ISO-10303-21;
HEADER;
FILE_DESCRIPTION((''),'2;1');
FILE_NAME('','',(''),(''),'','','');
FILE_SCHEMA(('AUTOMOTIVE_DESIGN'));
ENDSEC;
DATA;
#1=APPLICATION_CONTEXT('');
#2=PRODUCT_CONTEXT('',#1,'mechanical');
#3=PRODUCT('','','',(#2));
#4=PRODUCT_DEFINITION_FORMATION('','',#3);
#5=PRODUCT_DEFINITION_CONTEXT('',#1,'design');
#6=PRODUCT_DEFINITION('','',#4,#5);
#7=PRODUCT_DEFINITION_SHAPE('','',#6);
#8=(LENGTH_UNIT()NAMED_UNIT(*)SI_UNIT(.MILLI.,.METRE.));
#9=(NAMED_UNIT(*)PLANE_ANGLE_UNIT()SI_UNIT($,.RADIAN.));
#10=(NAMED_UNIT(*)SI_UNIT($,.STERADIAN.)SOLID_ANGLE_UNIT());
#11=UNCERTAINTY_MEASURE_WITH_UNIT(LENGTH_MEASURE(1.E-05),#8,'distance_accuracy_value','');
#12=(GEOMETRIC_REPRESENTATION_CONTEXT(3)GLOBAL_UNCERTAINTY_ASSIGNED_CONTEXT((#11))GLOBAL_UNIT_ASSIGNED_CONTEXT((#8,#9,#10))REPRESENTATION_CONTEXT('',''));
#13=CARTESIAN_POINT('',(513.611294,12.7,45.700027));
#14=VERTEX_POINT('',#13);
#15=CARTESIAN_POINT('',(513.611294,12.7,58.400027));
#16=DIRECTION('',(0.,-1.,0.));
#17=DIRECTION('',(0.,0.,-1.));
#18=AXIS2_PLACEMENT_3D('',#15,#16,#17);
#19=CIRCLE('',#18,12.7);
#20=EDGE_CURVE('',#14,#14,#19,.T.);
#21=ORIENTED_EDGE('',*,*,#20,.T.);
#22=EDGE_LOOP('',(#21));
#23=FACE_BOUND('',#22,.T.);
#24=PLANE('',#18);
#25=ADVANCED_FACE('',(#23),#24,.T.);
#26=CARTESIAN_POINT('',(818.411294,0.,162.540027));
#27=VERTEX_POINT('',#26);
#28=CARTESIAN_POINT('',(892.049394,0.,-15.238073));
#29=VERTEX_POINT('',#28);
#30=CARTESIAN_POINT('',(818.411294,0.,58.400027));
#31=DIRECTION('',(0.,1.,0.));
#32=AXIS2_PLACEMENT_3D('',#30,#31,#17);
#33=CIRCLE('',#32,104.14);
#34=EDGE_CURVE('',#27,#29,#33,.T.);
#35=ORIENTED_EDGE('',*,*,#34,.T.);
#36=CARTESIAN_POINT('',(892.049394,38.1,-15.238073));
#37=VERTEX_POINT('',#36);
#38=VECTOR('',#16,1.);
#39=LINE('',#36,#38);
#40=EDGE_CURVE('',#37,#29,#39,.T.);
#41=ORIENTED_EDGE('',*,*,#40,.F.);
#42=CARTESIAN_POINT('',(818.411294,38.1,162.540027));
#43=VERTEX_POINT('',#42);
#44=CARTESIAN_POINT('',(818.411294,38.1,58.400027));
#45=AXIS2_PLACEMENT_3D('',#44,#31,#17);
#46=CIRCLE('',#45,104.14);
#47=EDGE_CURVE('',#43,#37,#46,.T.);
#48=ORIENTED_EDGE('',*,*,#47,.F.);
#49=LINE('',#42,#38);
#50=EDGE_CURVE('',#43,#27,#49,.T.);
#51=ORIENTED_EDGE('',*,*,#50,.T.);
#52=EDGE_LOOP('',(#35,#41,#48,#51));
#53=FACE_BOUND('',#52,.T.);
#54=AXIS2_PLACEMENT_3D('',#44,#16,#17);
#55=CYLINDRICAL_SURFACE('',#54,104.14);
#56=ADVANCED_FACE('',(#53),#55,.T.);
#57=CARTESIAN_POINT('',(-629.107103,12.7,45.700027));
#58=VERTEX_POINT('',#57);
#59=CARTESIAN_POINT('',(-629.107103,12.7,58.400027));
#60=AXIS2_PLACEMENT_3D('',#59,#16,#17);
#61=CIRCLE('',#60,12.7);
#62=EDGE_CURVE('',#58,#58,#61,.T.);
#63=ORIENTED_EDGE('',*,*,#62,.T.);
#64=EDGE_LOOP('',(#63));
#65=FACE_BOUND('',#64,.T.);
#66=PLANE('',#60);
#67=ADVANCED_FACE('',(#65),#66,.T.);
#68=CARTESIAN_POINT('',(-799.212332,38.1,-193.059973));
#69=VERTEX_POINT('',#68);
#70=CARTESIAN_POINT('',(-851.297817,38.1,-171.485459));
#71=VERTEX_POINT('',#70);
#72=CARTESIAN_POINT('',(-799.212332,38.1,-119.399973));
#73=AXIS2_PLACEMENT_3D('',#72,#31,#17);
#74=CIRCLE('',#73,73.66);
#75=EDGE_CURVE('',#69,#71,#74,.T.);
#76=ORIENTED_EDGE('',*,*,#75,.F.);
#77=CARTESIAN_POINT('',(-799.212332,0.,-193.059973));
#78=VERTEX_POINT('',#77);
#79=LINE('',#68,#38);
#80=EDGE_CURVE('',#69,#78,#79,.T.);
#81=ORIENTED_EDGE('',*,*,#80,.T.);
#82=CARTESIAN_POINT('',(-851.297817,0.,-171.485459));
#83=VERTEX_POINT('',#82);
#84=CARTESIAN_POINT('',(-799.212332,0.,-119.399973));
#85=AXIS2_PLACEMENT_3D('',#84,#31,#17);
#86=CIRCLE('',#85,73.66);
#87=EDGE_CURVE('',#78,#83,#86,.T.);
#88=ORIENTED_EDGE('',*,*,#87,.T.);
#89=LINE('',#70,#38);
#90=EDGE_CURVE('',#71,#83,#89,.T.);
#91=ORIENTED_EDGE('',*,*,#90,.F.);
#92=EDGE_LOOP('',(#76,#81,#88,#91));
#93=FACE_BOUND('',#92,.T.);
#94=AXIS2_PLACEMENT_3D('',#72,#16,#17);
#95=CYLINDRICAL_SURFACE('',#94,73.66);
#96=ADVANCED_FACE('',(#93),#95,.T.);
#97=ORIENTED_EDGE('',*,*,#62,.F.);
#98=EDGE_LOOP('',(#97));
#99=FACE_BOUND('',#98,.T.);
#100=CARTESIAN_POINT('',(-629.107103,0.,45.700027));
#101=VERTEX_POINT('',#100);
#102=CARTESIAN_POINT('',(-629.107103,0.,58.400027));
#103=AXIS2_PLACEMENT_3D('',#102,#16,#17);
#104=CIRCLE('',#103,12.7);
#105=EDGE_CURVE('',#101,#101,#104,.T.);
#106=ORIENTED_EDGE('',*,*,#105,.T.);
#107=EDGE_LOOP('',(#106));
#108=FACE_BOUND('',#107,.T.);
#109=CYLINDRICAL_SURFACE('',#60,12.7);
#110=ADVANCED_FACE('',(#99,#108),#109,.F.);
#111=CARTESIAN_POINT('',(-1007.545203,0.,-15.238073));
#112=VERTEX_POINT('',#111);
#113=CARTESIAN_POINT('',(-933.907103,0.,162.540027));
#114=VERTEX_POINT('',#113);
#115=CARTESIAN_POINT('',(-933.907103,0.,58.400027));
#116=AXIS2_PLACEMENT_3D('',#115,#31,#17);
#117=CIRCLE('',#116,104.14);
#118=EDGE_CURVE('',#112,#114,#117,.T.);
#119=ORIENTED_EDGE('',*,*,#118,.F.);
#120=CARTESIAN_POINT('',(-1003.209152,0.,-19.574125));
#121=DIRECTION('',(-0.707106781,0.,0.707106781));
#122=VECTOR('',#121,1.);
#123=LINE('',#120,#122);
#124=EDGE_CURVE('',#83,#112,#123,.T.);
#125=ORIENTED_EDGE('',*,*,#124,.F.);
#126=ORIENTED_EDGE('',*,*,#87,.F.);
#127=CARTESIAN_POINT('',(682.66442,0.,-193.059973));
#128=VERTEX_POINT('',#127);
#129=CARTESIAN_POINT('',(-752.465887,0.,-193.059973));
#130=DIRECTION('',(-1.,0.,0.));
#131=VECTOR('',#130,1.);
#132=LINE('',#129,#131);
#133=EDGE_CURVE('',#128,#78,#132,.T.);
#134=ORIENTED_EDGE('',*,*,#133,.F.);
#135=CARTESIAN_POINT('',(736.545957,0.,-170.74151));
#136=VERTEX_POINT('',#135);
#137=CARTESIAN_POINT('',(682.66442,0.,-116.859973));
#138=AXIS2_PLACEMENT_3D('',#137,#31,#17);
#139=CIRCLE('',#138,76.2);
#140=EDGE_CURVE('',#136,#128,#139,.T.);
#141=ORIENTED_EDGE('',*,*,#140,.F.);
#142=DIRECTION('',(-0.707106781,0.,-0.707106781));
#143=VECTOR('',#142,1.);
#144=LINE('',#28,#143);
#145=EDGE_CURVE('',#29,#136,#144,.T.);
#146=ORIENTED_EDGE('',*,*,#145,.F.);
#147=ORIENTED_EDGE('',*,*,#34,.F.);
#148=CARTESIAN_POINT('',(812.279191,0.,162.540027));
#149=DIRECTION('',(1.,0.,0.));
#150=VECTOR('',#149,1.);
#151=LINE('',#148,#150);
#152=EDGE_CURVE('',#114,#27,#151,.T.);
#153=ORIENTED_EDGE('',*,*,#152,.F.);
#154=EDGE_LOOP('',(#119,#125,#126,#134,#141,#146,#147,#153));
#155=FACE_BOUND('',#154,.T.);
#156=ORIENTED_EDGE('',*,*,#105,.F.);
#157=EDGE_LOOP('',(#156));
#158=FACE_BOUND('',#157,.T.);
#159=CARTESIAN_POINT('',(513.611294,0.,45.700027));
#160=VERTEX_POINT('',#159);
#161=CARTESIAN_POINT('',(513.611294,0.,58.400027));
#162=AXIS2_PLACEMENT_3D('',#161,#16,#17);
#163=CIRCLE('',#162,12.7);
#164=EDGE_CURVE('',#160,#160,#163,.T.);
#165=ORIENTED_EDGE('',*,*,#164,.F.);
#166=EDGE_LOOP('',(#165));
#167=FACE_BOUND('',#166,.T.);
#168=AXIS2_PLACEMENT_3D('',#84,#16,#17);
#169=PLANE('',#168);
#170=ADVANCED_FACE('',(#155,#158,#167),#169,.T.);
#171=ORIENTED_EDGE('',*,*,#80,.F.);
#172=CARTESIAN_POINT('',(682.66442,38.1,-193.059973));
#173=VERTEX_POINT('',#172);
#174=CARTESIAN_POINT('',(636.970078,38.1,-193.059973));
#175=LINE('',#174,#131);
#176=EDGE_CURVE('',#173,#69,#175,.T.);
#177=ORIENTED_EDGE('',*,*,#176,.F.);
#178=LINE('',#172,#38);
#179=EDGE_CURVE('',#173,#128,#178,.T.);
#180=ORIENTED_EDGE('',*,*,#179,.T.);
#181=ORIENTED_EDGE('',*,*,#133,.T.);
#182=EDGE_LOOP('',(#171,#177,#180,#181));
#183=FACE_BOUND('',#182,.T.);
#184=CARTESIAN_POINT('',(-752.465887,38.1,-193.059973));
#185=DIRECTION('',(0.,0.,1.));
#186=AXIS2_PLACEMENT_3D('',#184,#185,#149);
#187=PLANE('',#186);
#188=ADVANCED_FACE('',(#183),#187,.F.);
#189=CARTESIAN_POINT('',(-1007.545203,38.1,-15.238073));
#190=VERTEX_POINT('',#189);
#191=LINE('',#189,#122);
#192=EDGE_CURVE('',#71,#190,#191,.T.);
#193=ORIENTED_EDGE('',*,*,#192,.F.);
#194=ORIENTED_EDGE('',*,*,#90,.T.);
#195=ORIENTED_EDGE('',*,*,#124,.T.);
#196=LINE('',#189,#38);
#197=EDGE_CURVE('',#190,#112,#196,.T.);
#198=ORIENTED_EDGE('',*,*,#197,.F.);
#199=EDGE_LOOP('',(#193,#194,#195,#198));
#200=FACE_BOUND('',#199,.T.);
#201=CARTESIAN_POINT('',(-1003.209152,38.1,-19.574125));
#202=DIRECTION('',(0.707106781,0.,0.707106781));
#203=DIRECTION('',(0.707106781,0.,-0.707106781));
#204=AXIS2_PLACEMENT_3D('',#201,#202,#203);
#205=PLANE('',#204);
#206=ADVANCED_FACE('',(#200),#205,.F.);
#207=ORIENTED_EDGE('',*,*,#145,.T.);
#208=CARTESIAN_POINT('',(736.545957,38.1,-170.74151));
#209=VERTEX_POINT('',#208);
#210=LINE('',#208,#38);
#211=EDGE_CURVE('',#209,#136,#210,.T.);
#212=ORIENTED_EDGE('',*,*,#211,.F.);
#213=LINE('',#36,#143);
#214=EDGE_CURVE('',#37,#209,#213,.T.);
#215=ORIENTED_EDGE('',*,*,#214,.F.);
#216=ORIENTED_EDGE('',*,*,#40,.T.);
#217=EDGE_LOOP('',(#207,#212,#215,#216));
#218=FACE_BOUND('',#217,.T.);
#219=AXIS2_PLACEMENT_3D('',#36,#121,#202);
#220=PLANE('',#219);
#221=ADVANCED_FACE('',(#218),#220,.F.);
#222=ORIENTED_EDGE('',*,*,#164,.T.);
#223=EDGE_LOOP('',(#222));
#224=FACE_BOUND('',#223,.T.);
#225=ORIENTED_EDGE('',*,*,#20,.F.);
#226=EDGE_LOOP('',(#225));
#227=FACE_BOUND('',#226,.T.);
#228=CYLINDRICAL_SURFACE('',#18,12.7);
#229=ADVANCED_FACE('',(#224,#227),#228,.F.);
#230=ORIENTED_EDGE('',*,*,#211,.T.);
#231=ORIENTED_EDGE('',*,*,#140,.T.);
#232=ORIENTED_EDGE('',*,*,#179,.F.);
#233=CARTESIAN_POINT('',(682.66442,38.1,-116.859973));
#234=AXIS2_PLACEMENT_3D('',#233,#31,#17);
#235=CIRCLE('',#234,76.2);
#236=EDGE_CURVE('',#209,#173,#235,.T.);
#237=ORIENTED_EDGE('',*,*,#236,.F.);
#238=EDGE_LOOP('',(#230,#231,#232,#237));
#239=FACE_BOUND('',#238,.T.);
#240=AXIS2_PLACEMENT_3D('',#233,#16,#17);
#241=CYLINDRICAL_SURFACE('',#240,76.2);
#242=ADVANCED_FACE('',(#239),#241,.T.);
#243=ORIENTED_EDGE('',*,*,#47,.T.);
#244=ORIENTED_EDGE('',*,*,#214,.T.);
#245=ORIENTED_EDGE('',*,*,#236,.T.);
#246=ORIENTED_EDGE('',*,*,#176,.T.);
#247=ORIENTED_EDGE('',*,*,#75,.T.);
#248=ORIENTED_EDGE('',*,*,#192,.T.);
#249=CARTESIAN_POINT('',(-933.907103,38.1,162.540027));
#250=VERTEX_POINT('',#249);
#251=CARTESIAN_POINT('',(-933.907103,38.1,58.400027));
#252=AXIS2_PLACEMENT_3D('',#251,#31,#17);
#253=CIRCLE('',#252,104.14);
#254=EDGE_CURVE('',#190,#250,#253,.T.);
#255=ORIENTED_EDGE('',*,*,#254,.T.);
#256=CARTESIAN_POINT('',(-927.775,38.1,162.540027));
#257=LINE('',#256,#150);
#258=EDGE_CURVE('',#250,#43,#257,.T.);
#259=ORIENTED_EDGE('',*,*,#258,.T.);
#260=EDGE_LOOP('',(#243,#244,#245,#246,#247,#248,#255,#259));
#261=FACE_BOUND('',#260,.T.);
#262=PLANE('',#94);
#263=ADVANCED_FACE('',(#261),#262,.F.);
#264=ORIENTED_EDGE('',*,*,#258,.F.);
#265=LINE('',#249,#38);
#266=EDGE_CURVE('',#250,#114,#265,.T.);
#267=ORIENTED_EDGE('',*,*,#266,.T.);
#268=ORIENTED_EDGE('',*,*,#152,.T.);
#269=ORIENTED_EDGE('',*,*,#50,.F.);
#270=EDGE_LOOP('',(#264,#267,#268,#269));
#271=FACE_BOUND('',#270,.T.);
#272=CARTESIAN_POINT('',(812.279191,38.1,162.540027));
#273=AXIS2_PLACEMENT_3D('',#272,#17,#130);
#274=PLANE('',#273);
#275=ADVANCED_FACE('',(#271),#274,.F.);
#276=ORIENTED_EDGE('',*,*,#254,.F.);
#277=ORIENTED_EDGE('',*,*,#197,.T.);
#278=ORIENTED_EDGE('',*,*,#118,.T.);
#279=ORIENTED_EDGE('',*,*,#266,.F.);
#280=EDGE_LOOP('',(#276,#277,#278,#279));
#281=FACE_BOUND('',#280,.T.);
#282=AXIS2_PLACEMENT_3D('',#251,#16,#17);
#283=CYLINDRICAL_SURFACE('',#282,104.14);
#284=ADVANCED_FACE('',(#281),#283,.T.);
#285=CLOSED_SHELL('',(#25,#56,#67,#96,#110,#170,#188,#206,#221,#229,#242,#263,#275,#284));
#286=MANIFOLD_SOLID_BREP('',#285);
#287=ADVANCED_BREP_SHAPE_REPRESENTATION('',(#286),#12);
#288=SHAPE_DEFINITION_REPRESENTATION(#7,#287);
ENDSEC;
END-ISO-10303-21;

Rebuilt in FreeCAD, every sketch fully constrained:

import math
import FreeCAD as App
import Part
import Sketcher

V = App.Vector
Q = App.Units.Quantity

doc = App.newDocument("Part")
body = doc.addObject("PartDesign::Body", "Body")

# Sketch on XZ plane
sketch1 = doc.addObject("Sketcher::SketchObject", "Sketch")
body.addObject(sketch1)
sketch1.AttachmentSupport = (doc.XZ_Plane, [""])
sketch1.MapMode = "FlatFace"
sketch1.addGeometry(Part.LineSegment(V(-852, -170.7, 0), V(-1003.2, -19.6, 0)), False)
sketch1.addGeometry(Part.LineSegment(V(-1003.2, -19.6, 0), V(-1007.5, -15.2, 0)), False)
sketch1.addGeometry(Part.ArcOfCircle(Part.Circle(V(-933.9, 58.4, 0), V(0, 0, 1), 104.1), math.radians(90), math.radians(225)), False)
sketch1.addGeometry(Part.LineSegment(V(-933.9, 162.5, 0), V(818.4, 162.5, 0)), False)
sketch1.addGeometry(Part.ArcOfCircle(Part.Circle(V(818.4, 58.4, 0), V(0, 0, 1), 104.1), math.radians(-45), math.radians(90)), False)
sketch1.addGeometry(Part.LineSegment(V(892, -15.2, 0), V(736.5, -170.7, 0)), False)
sketch1.addGeometry(Part.ArcOfCircle(Part.Circle(V(682.7, -116.9, 0), V(0, 0, 1), 76.2), math.radians(-90), math.radians(-45)), False)
sketch1.addGeometry(Part.LineSegment(V(682.7, -193.1, 0), V(-799.2, -193.1, 0)), False)
sketch1.addGeometry(Part.ArcOfCircle(Part.Circle(V(-799.2, -119.4, 0), V(0, 0, 1), 73.7), math.radians(-135), math.radians(-90)), False)
sketch1.addGeometry(Part.LineSegment(V(-851.3, -171.5, 0), V(-852, -170.7, 0)), False)
sketch1.addConstraint(Sketcher.Constraint("Coincident", 0, 2, 1, 1))
sketch1.addConstraint(Sketcher.Constraint("Tangent", 1, 2, 2, 2))
sketch1.addConstraint(Sketcher.Constraint("Tangent", 2, 1, 3, 1))
sketch1.addConstraint(Sketcher.Constraint("Tangent", 3, 2, 4, 2))
sketch1.addConstraint(Sketcher.Constraint("Tangent", 4, 1, 5, 1))
sketch1.addConstraint(Sketcher.Constraint("Tangent", 5, 2, 6, 2))
sketch1.addConstraint(Sketcher.Constraint("Tangent", 6, 1, 7, 1))
sketch1.addConstraint(Sketcher.Constraint("Tangent", 7, 2, 8, 2))
sketch1.addConstraint(Sketcher.Constraint("Tangent", 8, 1, 9, 1))
sketch1.addConstraint(Sketcher.Constraint("Coincident", 9, 2, 0, 1))
sketch1.addConstraint(Sketcher.Constraint("Horizontal", 3))
sketch1.addConstraint(Sketcher.Constraint("Horizontal", 7))
sketch1.addConstraint(Sketcher.Constraint("Equal", 2, 4))
sketch1.addConstraint(Sketcher.Constraint("Parallel", 0, 1))
sketch1.addConstraint(Sketcher.Constraint("Perpendicular", 1, 5))
sketch1.addConstraint(Sketcher.Constraint("Perpendicular", 5, 9))
sketch1.addConstraint(Sketcher.Constraint("Horizontal", 1, 2, 4, 1))
sketch1.addConstraint(Sketcher.Constraint("Horizontal", 5, 2, 9, 2))
sketch1.addConstraint(Sketcher.Constraint("Radius", 6, Q("3 in")))
sketch1.addConstraint(Sketcher.Constraint("Radius", 2, Q("4.1 in")))
sketch1.addConstraint(Sketcher.Constraint("Radius", 8, Q("2.9 in")))
sketch1.addConstraint(Sketcher.Constraint("DistanceY", 8, 3, 2, 3, Q("7 in")))
sketch1.addConstraint(Sketcher.Constraint("DistanceX", 3, 1, 3, 2, 1752.318396))
sketch1.addConstraint(Sketcher.Constraint("DistanceX", -1, 1, 6, 3, 682.66442))
sketch1.addConstraint(Sketcher.Constraint("DistanceX", 0, 2, -1, 1, 1003.209152))
sketch1.addConstraint(Sketcher.Constraint("DistanceY", 5, 2, -1, 1, 170.74151))
pad1 = doc.addObject("PartDesign::Pad", "Pad")
body.addObject(pad1)
pad1.Profile = sketch1
pad1.Length = Q("1.5 in")
pad1.Reversed = True

# Sketch on XZ plane
sketch2 = doc.addObject("Sketcher::SketchObject", "Sketch001")
body.addObject(sketch2)
sketch2.AttachmentSupport = (doc.XZ_Plane, [""])
sketch2.MapMode = "FlatFace"
sketch2.addGeometry(Part.Circle(V(-629, 58, 0), V(0, 0, 1), 13), False)
sketch2.addGeometry(Part.Circle(V(514, 58, 0), V(0, 0, 1), 13), False)
sketch2.addConstraint(Sketcher.Constraint("Equal", 0, 1))
sketch2.addConstraint(Sketcher.Constraint("Horizontal", 0, 3, 1, 3))
sketch2.addConstraint(Sketcher.Constraint("Diameter", 0, Q("1 in")))
sketch2.addConstraint(Sketcher.Constraint("DistanceX", 0, 3, -1, 1, 629.107103))
sketch2.addConstraint(Sketcher.Constraint("DistanceY", -1, 1, 0, 3, 58.400027))
sketch2.addConstraint(Sketcher.Constraint("DistanceX", -1, 1, 1, 3, 513.611294))
pocket1 = doc.addObject("PartDesign::Pocket", "Pocket")
body.addObject(pocket1)
pocket1.Profile = sketch2
pocket1.Length = Q("0.5 in")

doc.recompute()
